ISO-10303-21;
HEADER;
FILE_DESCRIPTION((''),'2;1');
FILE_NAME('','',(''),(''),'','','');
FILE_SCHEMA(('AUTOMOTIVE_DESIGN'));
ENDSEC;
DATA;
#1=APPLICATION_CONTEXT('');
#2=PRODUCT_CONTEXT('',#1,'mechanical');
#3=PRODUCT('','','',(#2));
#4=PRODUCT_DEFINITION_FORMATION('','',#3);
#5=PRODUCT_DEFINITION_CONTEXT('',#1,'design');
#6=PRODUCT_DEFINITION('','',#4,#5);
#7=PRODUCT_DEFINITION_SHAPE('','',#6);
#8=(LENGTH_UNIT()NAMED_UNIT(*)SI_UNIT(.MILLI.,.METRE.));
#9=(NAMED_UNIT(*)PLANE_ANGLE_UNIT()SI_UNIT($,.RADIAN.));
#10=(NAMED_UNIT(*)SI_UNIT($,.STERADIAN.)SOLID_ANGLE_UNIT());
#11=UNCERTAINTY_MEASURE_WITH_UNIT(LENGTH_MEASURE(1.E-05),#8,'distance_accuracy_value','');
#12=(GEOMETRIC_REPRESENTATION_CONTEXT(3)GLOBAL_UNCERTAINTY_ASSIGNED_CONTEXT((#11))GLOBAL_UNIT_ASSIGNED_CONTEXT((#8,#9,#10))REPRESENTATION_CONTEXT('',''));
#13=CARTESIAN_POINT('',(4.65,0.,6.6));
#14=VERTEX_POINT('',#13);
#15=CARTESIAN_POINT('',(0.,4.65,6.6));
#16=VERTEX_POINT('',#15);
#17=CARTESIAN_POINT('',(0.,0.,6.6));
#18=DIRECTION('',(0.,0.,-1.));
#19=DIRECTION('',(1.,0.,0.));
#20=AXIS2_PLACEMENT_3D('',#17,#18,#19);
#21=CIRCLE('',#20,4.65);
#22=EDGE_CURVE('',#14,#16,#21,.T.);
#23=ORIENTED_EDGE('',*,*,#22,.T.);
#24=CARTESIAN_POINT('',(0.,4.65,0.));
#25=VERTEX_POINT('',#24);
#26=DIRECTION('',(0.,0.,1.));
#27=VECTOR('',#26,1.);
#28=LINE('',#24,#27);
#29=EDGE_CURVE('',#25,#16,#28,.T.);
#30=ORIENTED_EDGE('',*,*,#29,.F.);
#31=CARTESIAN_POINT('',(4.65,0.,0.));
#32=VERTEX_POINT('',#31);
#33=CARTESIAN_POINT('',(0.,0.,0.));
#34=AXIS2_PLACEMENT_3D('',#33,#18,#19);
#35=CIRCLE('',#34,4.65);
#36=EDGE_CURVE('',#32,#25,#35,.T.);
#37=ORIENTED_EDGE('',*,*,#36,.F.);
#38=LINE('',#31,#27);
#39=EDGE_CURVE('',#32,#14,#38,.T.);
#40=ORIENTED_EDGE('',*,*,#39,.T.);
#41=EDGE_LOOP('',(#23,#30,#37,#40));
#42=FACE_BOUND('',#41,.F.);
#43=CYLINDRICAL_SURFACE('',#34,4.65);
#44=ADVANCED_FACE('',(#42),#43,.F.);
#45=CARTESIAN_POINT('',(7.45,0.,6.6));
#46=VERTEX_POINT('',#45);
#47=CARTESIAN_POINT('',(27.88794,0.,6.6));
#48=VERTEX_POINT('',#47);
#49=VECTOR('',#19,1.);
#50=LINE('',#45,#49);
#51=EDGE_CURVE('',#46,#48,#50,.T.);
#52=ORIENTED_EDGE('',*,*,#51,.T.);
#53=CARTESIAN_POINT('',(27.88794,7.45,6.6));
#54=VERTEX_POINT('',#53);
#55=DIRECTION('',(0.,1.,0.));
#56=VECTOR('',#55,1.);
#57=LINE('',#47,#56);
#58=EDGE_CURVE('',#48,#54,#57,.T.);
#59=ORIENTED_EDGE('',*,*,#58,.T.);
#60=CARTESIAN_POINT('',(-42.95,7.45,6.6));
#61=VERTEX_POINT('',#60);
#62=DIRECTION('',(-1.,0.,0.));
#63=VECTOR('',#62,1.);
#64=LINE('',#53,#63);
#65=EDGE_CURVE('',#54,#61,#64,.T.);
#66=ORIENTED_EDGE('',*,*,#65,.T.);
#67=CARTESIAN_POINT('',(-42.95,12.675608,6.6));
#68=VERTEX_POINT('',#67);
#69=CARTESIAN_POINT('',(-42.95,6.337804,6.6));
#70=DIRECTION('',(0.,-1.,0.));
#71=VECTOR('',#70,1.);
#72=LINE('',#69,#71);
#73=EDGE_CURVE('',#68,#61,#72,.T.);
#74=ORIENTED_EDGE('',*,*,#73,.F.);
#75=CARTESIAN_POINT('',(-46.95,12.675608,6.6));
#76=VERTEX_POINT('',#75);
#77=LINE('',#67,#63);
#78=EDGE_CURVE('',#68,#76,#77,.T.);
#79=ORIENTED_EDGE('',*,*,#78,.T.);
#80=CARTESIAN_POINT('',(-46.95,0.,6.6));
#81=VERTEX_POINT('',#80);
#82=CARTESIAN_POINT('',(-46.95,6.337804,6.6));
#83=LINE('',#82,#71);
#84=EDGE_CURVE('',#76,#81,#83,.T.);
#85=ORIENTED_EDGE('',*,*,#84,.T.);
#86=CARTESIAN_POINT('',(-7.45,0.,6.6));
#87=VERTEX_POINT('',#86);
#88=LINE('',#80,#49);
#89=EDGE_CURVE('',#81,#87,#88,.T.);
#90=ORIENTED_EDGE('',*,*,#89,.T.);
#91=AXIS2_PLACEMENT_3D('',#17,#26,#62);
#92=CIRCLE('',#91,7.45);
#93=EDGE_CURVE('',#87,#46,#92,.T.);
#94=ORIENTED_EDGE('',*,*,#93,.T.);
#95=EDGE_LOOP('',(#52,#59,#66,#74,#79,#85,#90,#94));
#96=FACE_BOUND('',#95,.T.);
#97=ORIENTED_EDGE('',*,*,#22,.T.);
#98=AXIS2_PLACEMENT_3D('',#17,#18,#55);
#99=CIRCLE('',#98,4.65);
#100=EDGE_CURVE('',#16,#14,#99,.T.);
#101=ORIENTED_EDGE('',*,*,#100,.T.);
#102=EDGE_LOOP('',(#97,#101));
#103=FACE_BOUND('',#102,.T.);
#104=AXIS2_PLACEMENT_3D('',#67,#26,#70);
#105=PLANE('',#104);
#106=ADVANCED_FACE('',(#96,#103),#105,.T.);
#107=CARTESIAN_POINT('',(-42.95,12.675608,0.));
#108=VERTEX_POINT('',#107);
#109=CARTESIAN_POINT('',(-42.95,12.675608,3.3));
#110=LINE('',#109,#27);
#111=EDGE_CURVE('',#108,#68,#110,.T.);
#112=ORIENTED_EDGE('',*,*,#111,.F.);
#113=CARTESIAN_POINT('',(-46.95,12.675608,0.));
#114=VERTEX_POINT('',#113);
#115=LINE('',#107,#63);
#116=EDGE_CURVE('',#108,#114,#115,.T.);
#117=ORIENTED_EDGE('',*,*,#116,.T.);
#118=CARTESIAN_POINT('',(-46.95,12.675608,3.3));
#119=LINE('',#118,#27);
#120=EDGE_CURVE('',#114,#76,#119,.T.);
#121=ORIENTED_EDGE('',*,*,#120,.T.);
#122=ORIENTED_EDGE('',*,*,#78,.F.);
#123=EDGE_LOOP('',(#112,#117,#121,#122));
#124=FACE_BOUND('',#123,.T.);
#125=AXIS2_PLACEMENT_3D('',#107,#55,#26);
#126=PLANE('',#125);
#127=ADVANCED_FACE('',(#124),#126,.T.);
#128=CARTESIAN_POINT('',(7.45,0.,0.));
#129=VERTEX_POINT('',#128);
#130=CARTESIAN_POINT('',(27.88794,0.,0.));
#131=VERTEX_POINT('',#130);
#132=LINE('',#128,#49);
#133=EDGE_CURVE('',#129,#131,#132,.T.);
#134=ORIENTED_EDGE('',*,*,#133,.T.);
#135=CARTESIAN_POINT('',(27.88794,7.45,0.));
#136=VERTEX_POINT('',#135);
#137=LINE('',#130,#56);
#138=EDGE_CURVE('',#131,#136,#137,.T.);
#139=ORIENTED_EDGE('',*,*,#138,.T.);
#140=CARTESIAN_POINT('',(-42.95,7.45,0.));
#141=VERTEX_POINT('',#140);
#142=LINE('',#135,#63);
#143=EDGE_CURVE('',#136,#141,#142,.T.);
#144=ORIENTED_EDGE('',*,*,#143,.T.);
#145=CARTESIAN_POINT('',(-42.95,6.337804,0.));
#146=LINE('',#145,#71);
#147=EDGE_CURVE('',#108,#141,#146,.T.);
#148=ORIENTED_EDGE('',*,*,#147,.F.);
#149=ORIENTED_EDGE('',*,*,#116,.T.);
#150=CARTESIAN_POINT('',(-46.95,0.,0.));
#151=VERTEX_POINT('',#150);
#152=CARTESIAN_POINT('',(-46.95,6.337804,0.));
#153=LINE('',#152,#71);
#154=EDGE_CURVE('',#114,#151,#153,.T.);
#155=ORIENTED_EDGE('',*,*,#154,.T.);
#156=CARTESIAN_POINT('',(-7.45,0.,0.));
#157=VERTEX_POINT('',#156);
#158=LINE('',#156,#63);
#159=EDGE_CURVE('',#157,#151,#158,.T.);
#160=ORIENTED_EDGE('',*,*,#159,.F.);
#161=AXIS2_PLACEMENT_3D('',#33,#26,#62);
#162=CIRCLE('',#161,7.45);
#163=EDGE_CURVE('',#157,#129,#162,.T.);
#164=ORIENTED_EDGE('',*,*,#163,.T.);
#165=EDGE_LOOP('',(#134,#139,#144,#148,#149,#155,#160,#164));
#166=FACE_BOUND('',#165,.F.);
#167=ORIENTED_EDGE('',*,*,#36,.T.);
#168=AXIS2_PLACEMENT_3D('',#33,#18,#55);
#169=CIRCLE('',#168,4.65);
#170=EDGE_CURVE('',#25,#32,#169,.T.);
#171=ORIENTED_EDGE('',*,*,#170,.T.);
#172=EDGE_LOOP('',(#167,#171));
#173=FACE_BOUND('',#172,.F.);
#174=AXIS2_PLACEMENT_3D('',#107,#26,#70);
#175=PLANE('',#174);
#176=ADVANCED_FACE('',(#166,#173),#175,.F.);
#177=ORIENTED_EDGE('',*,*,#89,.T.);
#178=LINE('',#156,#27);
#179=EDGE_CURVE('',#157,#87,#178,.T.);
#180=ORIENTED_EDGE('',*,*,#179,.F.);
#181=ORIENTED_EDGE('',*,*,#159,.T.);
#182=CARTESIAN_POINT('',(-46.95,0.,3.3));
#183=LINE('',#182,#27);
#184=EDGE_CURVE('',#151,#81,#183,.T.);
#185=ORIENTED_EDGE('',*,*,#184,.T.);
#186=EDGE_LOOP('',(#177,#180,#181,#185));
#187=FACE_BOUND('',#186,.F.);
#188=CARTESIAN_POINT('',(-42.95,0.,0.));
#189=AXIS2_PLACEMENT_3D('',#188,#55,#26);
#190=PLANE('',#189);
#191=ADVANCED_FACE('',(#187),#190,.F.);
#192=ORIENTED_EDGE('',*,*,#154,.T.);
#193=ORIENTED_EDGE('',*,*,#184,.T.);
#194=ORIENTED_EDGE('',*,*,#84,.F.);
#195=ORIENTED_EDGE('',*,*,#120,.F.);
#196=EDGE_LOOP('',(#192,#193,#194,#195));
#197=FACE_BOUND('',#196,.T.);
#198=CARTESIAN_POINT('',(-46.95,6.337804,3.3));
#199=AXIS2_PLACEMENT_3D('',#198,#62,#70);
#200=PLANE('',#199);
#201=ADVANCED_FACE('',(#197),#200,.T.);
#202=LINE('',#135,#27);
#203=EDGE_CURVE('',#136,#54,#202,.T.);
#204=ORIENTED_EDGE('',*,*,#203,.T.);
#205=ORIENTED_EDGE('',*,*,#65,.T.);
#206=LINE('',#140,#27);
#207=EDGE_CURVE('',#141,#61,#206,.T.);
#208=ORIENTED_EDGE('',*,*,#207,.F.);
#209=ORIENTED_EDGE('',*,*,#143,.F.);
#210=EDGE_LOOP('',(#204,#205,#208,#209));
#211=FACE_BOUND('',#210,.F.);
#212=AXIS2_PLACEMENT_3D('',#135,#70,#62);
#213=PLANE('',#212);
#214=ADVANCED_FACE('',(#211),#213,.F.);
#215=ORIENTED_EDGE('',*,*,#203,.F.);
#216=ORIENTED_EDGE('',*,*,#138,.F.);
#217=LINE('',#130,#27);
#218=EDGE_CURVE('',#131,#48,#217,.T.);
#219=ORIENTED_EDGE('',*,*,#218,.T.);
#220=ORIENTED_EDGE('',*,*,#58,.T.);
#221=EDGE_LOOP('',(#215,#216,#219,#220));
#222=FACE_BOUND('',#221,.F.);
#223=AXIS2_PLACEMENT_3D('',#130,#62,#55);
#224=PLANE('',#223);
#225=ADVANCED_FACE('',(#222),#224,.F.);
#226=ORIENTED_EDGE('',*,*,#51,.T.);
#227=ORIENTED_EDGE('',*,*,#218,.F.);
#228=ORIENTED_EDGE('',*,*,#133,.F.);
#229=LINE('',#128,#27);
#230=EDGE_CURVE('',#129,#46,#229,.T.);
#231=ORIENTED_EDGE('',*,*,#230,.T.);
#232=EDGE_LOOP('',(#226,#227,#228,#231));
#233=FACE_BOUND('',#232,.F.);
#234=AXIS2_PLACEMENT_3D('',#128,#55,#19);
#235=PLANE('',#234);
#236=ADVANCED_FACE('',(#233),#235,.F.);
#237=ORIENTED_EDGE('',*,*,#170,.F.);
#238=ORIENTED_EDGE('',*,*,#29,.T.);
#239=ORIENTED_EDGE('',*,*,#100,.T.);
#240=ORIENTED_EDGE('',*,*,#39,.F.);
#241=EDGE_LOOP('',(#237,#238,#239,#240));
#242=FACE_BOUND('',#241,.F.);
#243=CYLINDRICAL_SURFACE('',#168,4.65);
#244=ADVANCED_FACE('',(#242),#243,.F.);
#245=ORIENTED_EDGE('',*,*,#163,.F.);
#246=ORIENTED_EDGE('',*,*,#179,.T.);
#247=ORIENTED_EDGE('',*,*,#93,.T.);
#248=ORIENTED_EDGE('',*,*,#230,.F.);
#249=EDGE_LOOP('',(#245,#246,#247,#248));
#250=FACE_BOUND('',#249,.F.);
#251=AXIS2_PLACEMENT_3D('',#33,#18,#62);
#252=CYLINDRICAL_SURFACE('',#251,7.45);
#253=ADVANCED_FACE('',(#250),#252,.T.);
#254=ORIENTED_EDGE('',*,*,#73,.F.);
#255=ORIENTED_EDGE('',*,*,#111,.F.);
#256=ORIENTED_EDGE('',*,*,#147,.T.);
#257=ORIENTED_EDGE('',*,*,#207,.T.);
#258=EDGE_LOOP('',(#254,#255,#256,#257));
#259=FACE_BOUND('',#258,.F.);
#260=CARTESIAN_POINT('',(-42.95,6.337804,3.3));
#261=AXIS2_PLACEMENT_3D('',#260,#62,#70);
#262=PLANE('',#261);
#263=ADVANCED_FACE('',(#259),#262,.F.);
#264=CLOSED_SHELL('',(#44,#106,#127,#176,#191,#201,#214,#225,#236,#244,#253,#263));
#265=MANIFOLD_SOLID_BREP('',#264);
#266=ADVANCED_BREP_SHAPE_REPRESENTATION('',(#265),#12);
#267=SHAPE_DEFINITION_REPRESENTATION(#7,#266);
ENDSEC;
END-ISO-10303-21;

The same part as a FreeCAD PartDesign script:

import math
import FreeCAD as App
import Part
import Sketcher
from FreeCAD import Vector
Q = App.Units.Quantity

doc = App.newDocument("Part")
body = doc.addObject("PartDesign::Body", "Body")

sketch1 = body.newObject("Sketcher::SketchObject", "Sketch")
sketch1.AttachmentSupport = (doc.getObject("XY_Plane"), [""])
sketch1.MapMode = "FlatFace"
sketch1.addGeometry(Part.ArcOfCircle(Part.Circle(Vector(0, 0, 0), Vector(0, 0, 1), 7.5), math.radians(180), math.radians(360)), False)
sketch1.addGeometry(Part.LineSegment(Vector(7.5, 0, 0), Vector(27.9, 0, 0)), False)
sketch1.addGeometry(Part.LineSegment(Vector(27.9, 0, 0), Vector(27.9, 7.5, 0)), False)
sketch1.addGeometry(Part.LineSegment(Vector(27.9, 7.5, 0), Vector(-43, 7.5, 0)), False)
sketch1.addGeometry(Part.LineSegment(Vector(-43, 7.5, 0), Vector(-43, 0, 0)), False)
sketch1.addGeometry(Part.LineSegment(Vector(-43, 0, 0), Vector(-7.5, 0, 0)), False)
sketch1.addGeometry(Part.ArcOfCircle(Part.Circle(Vector(0, 0, 0), Vector(0, 0, 1), 4.7), math.radians(90), math.radians(360)), False)
sketch1.addGeometry(Part.ArcOfCircle(Part.Circle(Vector(0, 0, 0), Vector(0, 0, 1), 4.7), math.radians(0), math.radians(90)), False)
sketch1.addConstraint(Sketcher.Constraint("Coincident", 0, 2, 1, 1))
sketch1.addConstraint(Sketcher.Constraint("Coincident", 1, 2, 2, 1))
sketch1.addConstraint(Sketcher.Constraint("Coincident", 2, 2, 3, 1))
sketch1.addConstraint(Sketcher.Constraint("Coincident", 3, 2, 4, 1))
sketch1.addConstraint(Sketcher.Constraint("Coincident", 4, 2, 5, 1))
sketch1.addConstraint(Sketcher.Constraint("Coincident", 5, 2, 0, 1))
sketch1.addConstraint(Sketcher.Constraint("Tangent", 6, 1, 7, 2))
sketch1.addConstraint(Sketcher.Constraint("Coincident", 7, 1, 6, 2))
sketch1.addConstraint(Sketcher.Constraint("Horizontal", 1))
sketch1.addConstraint(Sketcher.Constraint("Vertical", 2))
sketch1.addConstraint(Sketcher.Constraint("Horizontal", 3))
sketch1.addConstraint(Sketcher.Constraint("Vertical", 4))
sketch1.addConstraint(Sketcher.Constraint("Horizontal", 5))
sketch1.addConstraint(Sketcher.Constraint("Coincident", 0, 3, -1, 1))
sketch1.addConstraint(Sketcher.Constraint("Coincident", 6, 3, -1, 1))
sketch1.addConstraint(Sketcher.Constraint("PointOnObject", 0, 2, -1))
sketch1.addConstraint(Sketcher.Constraint("PointOnObject", 4, 2, -1))
sketch1.addConstraint(Sketcher.Constraint("PointOnObject", 6, 1, -2))
sketch1.addConstraint(Sketcher.Constraint("PointOnObject", 7, 1, -1))
sketch1.addConstraint(Sketcher.Constraint("Radius", 0, Q("7.45 mm")))
sketch1.addConstraint(Sketcher.Constraint("Radius", 6, Q("4.65 mm")))
sketch1.addConstraint(Sketcher.Constraint("DistanceX", 5, 1, 5, 2, Q("35.5 mm")))
sketch1.addConstraint(Sketcher.Constraint("DistanceY", 2, 1, 2, 2, Q("7.45 mm")))
sketch1.addConstraint(Sketcher.Constraint("DistanceX", 1, 1, 1, 2, Q("20.43794 mm")))
pad1 = body.newObject("PartDesign::Pad", "Pad")
pad1.Profile = sketch1
pad1.Length = 6.6

sketch2 = body.newObject("Sketcher::SketchObject", "Sketch001")
sketch2.AttachmentSupport = (doc.getObject("YZ_Plane"), [""])
sketch2.MapMode = "FlatFace"
sketch2.AttachmentOffset = App.Placement(Vector(0, 0, -42.95), App.Rotation())
sketch2.addGeometry(Part.LineSegment(Vector(13, 7, 0), Vector(13, 0, 0)), False)
sketch2.addGeometry(Part.LineSegment(Vector(13, 0, 0), Vector(0, 0, 0)), False)
sketch2.addGeometry(Part.LineSegment(Vector(0, 0, 0), Vector(0, 7, 0)), False)
sketch2.addGeometry(Part.LineSegment(Vector(0, 7, 0), Vector(13, 7, 0)), False)
sketch2.addConstraint(Sketcher.Constraint("Coincident", 0, 2, 1, 1))
sketch2.addConstraint(Sketcher.Constraint("Coincident", 1, 2, 2, 1))
sketch2.addConstraint(Sketcher.Constraint("Coincident", 2, 2, 3, 1))
sketch2.addConstraint(Sketcher.Constraint("Coincident", 3, 2, 0, 1))
sketch2.addConstraint(Sketcher.Constraint("Vertical", 0))
sketch2.addConstraint(Sketcher.Constraint("Horizontal", 1))
sketch2.addConstraint(Sketcher.Constraint("Vertical", 2))
sketch2.addConstraint(Sketcher.Constraint("Horizontal", 3))
sketch2.addConstraint(Sketcher.Constraint("Coincident", 1, 2, -1, 1))
sketch2.addConstraint(Sketcher.Constraint("DistanceY", 0, 2, 0, 1, Q("6.6 mm")))
sketch2.addConstraint(Sketcher.Constraint("DistanceX", 1, 2, 1, 1, Q("12.675608 mm")))
pad2 = body.newObject("PartDesign::Pad", "Pad001")
pad2.Profile = sketch2
pad2.Length = 4
pad2.Reversed = True

doc.recompute()
